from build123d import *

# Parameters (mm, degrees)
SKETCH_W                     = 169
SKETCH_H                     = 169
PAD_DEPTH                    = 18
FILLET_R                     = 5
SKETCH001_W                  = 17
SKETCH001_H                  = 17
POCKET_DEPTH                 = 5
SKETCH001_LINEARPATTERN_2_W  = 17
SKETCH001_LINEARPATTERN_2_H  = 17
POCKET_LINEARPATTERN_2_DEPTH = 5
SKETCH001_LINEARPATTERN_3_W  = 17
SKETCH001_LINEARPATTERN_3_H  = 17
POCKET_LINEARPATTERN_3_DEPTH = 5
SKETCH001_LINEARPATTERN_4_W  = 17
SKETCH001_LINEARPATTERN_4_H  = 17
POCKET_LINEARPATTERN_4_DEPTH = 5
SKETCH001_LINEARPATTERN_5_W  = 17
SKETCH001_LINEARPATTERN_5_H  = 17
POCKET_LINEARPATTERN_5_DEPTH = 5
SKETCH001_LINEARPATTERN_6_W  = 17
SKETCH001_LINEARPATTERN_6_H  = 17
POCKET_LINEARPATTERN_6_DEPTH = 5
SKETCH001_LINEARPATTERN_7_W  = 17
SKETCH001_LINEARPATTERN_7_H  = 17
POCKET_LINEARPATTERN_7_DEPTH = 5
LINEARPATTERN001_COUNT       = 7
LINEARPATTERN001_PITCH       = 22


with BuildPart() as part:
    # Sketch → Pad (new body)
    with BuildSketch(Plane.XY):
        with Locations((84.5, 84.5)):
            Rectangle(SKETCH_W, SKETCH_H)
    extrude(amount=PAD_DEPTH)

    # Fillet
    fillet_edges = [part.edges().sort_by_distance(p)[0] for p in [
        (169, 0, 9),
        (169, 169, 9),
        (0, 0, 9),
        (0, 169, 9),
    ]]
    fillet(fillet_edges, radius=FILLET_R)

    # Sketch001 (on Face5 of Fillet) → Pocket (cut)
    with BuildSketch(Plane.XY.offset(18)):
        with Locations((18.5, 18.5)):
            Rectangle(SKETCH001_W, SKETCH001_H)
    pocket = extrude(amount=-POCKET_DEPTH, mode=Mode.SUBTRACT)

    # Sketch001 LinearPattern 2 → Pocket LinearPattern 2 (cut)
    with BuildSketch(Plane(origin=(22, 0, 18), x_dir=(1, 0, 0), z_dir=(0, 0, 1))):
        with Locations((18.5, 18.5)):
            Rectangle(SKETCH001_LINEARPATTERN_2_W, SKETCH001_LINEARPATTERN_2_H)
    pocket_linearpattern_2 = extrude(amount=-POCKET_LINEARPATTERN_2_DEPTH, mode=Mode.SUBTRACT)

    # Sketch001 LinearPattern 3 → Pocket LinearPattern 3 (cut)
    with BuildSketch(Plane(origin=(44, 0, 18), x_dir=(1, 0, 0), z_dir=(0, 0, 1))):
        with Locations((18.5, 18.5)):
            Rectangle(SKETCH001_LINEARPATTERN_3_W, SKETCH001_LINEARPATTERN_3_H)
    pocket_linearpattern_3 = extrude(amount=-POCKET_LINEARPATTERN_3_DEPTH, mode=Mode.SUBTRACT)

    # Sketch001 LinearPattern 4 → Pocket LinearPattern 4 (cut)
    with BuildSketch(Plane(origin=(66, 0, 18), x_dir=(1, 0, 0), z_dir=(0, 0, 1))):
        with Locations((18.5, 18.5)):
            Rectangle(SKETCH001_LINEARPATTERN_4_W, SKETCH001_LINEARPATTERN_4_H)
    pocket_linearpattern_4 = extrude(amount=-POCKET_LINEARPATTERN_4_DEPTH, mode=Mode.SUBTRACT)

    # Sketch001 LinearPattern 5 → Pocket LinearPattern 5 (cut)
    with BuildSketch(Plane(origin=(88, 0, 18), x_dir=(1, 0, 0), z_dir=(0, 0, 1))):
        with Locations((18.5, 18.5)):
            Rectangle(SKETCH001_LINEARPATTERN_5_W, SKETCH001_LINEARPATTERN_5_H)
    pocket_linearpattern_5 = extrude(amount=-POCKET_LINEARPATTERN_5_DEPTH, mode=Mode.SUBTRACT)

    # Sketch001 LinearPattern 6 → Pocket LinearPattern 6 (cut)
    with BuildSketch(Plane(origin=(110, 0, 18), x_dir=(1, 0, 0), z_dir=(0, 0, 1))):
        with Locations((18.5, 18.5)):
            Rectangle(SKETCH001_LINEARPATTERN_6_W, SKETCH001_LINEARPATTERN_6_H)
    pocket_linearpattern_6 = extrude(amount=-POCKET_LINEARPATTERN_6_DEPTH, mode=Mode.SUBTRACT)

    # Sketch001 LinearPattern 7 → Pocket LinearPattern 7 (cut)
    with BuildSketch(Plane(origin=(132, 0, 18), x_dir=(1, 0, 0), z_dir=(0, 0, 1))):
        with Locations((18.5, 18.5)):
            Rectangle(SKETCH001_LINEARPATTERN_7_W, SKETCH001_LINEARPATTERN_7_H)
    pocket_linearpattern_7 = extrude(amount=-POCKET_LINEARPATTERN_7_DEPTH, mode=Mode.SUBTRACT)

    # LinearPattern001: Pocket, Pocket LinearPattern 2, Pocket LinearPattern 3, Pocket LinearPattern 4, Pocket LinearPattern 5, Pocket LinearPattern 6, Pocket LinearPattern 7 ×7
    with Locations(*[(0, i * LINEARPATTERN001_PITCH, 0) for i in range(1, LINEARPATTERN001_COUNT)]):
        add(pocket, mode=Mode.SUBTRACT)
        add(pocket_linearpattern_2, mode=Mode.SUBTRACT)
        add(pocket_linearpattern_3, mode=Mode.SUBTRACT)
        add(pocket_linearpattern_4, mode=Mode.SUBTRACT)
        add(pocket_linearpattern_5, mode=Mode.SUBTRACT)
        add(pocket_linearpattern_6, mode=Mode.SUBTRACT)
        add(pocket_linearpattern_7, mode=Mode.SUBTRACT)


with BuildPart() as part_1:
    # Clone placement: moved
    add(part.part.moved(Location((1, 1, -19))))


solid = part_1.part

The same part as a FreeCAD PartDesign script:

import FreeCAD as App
import Part
import Sketcher

V = App.Vector


def edges_at(feature, points):
    """Names of the edges that pass closest to the given points."""
    edges = feature.Shape.Edges
    near = lambda p: min(range(len(edges)), key=lambda i: edges[i].distToShape(Part.Vertex(*p))[0])
    return sorted({f"Edge{near(p) + 1}" for p in points})


def add_polygon(sketch, points):
    """Adds a closed chain of lines whose ends are joined by coincident constraints."""
    first, n = sketch.GeometryCount, len(points)
    for a, b in zip(points, points[1:] + points[:1]):
        sketch.addGeometry(Part.LineSegment(App.Vector(*a, 0), App.Vector(*b, 0)), False)
    for i in range(n):
        sketch.addConstraint(Sketcher.Constraint("Coincident", first + i, 2, first + (i + 1) % n, 1))

doc = App.newDocument("Part")
body = doc.addObject("PartDesign::Body", "Body")

sketch1 = body.newObject("Sketcher::SketchObject", "Sketch")
sketch1.AttachmentSupport = (doc.getObject("XY_Plane"), [""])
sketch1.MapMode = "FlatFace"
add_polygon(sketch1, [(0, 169), (0, 0), (169, 0), (169, 169)])
sketch1.addConstraint(Sketcher.Constraint("Vertical", 0))
sketch1.addConstraint(Sketcher.Constraint("Horizontal", 1))
sketch1.addConstraint(Sketcher.Constraint("Vertical", 2))
sketch1.addConstraint(Sketcher.Constraint("Horizontal", 3))
sketch1.addConstraint(Sketcher.Constraint("Coincident", 0, 2, -1, 1))
sketch1.addConstraint(Sketcher.Constraint("Equal", 3, 0))
sketch1.addConstraint(Sketcher.Constraint("DistanceX", 1, 1, 1, 2, 169.0))
pad1 = body.newObject("PartDesign::Pad", "Pad")
pad1.Profile = sketch1
pad1.Length = 18
doc.recompute()

fillet = body.newObject("PartDesign::Fillet", "Fillet")
fillet.Base = (pad1, edges_at(pad1, [
    (169, 0, 9),
    (169, 169, 9),
    (0, 0, 9),
    (0, 169, 9),
]))
fillet.Radius = 5

sketch2 = body.newObject("Sketcher::SketchObject", "Sketch001")
sketch2.AttachmentSupport = (doc.getObject("XY_Plane"), [""])
sketch2.MapMode = "FlatFace"
sketch2.AttachmentOffset = App.Placement(V(0, 0, 18), App.Rotation())
add_polygon(sketch2, [(10, 27), (10, 10), (27, 10), (27, 27)])
sketch2.addConstraint(Sketcher.Constraint("Vertical", 0))
sketch2.addConstraint(Sketcher.Constraint("Horizontal", 1))
sketch2.addConstraint(Sketcher.Constraint("Vertical", 2))
sketch2.addConstraint(Sketcher.Constraint("Horizontal", 3))
sketch2.addConstraint(Sketcher.Constraint("Equal", 3, 0))
sketch2.addConstraint(Sketcher.Constraint("DistanceX", 1, 1, 1, 2, 17.0))
sketch2.addConstraint(Sketcher.Constraint("DistanceX", -1, 1, 0, 2, 10.0))
sketch2.addConstraint(Sketcher.Constraint("DistanceY", -1, 1, 0, 2, 10.0))
pocket1 = body.newObject("PartDesign::Pocket", "Pocket")
pocket1.Profile = sketch2
pocket1.Length = 5

sketch3 = body.newObject("Sketcher::SketchObject", "Sketch002")
sketch3.AttachmentSupport = (doc.getObject("XY_Plane"), [""])
sketch3.MapMode = "FlatFace"
sketch3.AttachmentOffset = App.Placement(V(0, 0, 18), App.Rotation())
add_polygon(sketch3, [(32, 27), (32, 10), (49, 10), (49, 27)])
sketch3.addConstraint(Sketcher.Constraint("Vertical", 0))
sketch3.addConstraint(Sketcher.Constraint("Horizontal", 1))
sketch3.addConstraint(Sketcher.Constraint("Vertical", 2))
sketch3.addConstraint(Sketcher.Constraint("Horizontal", 3))
sketch3.addConstraint(Sketcher.Constraint("Equal", 3, 0))
sketch3.addConstraint(Sketcher.Constraint("DistanceX", 1, 1, 1, 2, 17.0))
sketch3.addConstraint(Sketcher.Constraint("DistanceX", -1, 1, 0, 2, 32.0))
sketch3.addConstraint(Sketcher.Constraint("DistanceY", -1, 1, 0, 2, 10.0))
pocket2 = body.newObject("PartDesign::Pocket", "Pocket001")
pocket2.Profile = sketch3
pocket2.Length = 5

sketch4 = body.newObject("Sketcher::SketchObject", "Sketch003")
sketch4.AttachmentSupport = (doc.getObject("XY_Plane"), [""])
sketch4.MapMode = "FlatFace"
sketch4.AttachmentOffset = App.Placement(V(0, 0, 18), App.Rotation())
add_polygon(sketch4, [(54, 27), (54, 10), (71, 10), (71, 27)])
sketch4.addConstraint(Sketcher.Constraint("Vertical", 0))
sketch4.addConstraint(Sketcher.Constraint("Horizontal", 1))
sketch4.addConstraint(Sketcher.Constraint("Vertical", 2))
sketch4.addConstraint(Sketcher.Constraint("Horizontal", 3))
sketch4.addConstraint(Sketcher.Constraint("Equal", 3, 0))
sketch4.addConstraint(Sketcher.Constraint("DistanceX", 1, 1, 1, 2, 17.0))
sketch4.addConstraint(Sketcher.Constraint("DistanceX", -1, 1, 0, 2, 54.0))
sketch4.addConstraint(Sketcher.Constraint("DistanceY", -1, 1, 0, 2, 10.0))
pocket3 = body.newObject("PartDesign::Pocket", "Pocket002")
pocket3.Profile = sketch4
pocket3.Length = 5

sketch5 = body.newObject("Sketcher::SketchObject", "Sketch004")
sketch5.AttachmentSupport = (doc.getObject("XY_Plane"), [""])
sketch5.MapMode = "FlatFace"
sketch5.AttachmentOffset = App.Placement(V(0, 0, 18), App.Rotation())
add_polygon(sketch5, [(76, 27), (76, 10), (93, 10), (93, 27)])
sketch5.addConstraint(Sketcher.Constraint("Vertical", 0))
sketch5.addConstraint(Sketcher.Constraint("Horizontal", 1))
sketch5.addConstraint(Sketcher.Constraint("Vertical", 2))
sketch5.addConstraint(Sketcher.Constraint("Horizontal", 3))
sketch5.addConstraint(Sketcher.Constraint("Equal", 3, 0))
sketch5.addConstraint(Sketcher.Constraint("DistanceX", 1, 1, 1, 2, 17.0))
sketch5.addConstraint(Sketcher.Constraint("DistanceX", -1, 1, 0, 2, 76.0))
sketch5.addConstraint(Sketcher.Constraint("DistanceY", -1, 1, 0, 2, 10.0))
pocket4 = body.newObject("PartDesign::Pocket", "Pocket003")
pocket4.Profile = sketch5
pocket4.Length = 5

sketch6 = body.newObject("Sketcher::SketchObject", "Sketch005")
sketch6.AttachmentSupport = (doc.getObject("XY_Plane"), [""])
sketch6.MapMode = "FlatFace"
sketch6.AttachmentOffset = App.Placement(V(0, 0, 18), App.Rotation())
add_polygon(sketch6, [(98, 27), (98, 10), (115, 10), (115, 27)])
sketch6.addConstraint(Sketcher.Constraint("Vertical", 0))
sketch6.addConstraint(Sketcher.Constraint("Horizontal", 1))
sketch6.addConstraint(Sketcher.Constraint("Vertical", 2))
sketch6.addConstraint(Sketcher.Constraint("Horizontal", 3))
sketch6.addConstraint(Sketcher.Constraint("Equal", 3, 0))
sketch6.addConstraint(Sketcher.Constraint("DistanceX", 1, 1, 1, 2, 17.0))
sketch6.addConstraint(Sketcher.Constraint("DistanceX", -1, 1, 0, 2, 98.0))
sketch6.addConstraint(Sketcher.Constraint("DistanceY", -1, 1, 0, 2, 10.0))
pocket5 = body.newObject("PartDesign::Pocket", "Pocket004")
pocket5.Profile = sketch6
pocket5.Length = 5

sketch7 = body.newObject("Sketcher::SketchObject", "Sketch006")
sketch7.AttachmentSupport = (doc.getObject("XY_Plane"), [""])
sketch7.MapMode = "FlatFace"
sketch7.AttachmentOffset = App.Placement(V(0, 0, 18), App.Rotation())
add_polygon(sketch7, [(120, 27), (120, 10), (137, 10), (137, 27)])
sketch7.addConstraint(Sketcher.Constraint("Vertical", 0))
sketch7.addConstraint(Sketcher.Constraint("Horizontal", 1))
sketch7.addConstraint(Sketcher.Constraint("Vertical", 2))
sketch7.addConstraint(Sketcher.Constraint("Horizontal", 3))
sketch7.addConstraint(Sketcher.Constraint("Equal", 3, 0))
sketch7.addConstraint(Sketcher.Constraint("DistanceX", 1, 1, 1, 2, 17.0))
sketch7.addConstraint(Sketcher.Constraint("DistanceX", -1, 1, 0, 2, 120.0))
sketch7.addConstraint(Sketcher.Constraint("DistanceY", -1, 1, 0, 2, 10.0))
pocket6 = body.newObject("PartDesign::Pocket", "Pocket005")
pocket6.Profile = sketch7
pocket6.Length = 5

sketch8 = body.newObject("Sketcher::SketchObject", "Sketch007")
sketch8.AttachmentSupport = (doc.getObject("XY_Plane"), [""])
sketch8.MapMode = "FlatFace"
sketch8.AttachmentOffset = App.Placement(V(0, 0, 18), App.Rotation())
add_polygon(sketch8, [(142, 27), (142, 10), (159, 10), (159, 27)])
sketch8.addConstraint(Sketcher.Constraint("Vertical", 0))
sketch8.addConstraint(Sketcher.Constraint("Horizontal", 1))
sketch8.addConstraint(Sketcher.Constraint("Vertical", 2))
sketch8.addConstraint(Sketcher.Constraint("Horizontal", 3))
sketch8.addConstraint(Sketcher.Constraint("Equal", 3, 0))
sketch8.addConstraint(Sketcher.Constraint("DistanceX", 1, 1, 1, 2, 17.0))
sketch8.addConstraint(Sketcher.Constraint("DistanceX", -1, 1, 0, 2, 142.0))
sketch8.addConstraint(Sketcher.Constraint("DistanceY", -1, 1, 0, 2, 10.0))
pocket7 = body.newObject("PartDesign::Pocket", "Pocket006")
pocket7.Profile = sketch8
pocket7.Length = 5
doc.recompute()

linearpattern = body.newObject("PartDesign::LinearPattern", "LinearPattern")
linearpattern.Originals = [pocket1, pocket2, pocket3, pocket4, pocket5, pocket6, pocket7]
linearpattern.Direction = (doc.getObject("Y_Axis"), [""])
linearpattern.Mode = "offset"
linearpattern.Offset = 22
linearpattern.Occurrences = 7
body.Tip = linearpattern
body2 = doc.addObject("PartDesign::Body", "Body001")
doc.recompute()

body.Placement = App.Placement(V(1, 1, -19), App.Rotation(V(0, 0, 1), 0))
boolean = body2.newObject("PartDesign::Boolean", "Boolean")
boolean.Type = "Fuse"
boolean.addObjects([body])

doc.recompute()
